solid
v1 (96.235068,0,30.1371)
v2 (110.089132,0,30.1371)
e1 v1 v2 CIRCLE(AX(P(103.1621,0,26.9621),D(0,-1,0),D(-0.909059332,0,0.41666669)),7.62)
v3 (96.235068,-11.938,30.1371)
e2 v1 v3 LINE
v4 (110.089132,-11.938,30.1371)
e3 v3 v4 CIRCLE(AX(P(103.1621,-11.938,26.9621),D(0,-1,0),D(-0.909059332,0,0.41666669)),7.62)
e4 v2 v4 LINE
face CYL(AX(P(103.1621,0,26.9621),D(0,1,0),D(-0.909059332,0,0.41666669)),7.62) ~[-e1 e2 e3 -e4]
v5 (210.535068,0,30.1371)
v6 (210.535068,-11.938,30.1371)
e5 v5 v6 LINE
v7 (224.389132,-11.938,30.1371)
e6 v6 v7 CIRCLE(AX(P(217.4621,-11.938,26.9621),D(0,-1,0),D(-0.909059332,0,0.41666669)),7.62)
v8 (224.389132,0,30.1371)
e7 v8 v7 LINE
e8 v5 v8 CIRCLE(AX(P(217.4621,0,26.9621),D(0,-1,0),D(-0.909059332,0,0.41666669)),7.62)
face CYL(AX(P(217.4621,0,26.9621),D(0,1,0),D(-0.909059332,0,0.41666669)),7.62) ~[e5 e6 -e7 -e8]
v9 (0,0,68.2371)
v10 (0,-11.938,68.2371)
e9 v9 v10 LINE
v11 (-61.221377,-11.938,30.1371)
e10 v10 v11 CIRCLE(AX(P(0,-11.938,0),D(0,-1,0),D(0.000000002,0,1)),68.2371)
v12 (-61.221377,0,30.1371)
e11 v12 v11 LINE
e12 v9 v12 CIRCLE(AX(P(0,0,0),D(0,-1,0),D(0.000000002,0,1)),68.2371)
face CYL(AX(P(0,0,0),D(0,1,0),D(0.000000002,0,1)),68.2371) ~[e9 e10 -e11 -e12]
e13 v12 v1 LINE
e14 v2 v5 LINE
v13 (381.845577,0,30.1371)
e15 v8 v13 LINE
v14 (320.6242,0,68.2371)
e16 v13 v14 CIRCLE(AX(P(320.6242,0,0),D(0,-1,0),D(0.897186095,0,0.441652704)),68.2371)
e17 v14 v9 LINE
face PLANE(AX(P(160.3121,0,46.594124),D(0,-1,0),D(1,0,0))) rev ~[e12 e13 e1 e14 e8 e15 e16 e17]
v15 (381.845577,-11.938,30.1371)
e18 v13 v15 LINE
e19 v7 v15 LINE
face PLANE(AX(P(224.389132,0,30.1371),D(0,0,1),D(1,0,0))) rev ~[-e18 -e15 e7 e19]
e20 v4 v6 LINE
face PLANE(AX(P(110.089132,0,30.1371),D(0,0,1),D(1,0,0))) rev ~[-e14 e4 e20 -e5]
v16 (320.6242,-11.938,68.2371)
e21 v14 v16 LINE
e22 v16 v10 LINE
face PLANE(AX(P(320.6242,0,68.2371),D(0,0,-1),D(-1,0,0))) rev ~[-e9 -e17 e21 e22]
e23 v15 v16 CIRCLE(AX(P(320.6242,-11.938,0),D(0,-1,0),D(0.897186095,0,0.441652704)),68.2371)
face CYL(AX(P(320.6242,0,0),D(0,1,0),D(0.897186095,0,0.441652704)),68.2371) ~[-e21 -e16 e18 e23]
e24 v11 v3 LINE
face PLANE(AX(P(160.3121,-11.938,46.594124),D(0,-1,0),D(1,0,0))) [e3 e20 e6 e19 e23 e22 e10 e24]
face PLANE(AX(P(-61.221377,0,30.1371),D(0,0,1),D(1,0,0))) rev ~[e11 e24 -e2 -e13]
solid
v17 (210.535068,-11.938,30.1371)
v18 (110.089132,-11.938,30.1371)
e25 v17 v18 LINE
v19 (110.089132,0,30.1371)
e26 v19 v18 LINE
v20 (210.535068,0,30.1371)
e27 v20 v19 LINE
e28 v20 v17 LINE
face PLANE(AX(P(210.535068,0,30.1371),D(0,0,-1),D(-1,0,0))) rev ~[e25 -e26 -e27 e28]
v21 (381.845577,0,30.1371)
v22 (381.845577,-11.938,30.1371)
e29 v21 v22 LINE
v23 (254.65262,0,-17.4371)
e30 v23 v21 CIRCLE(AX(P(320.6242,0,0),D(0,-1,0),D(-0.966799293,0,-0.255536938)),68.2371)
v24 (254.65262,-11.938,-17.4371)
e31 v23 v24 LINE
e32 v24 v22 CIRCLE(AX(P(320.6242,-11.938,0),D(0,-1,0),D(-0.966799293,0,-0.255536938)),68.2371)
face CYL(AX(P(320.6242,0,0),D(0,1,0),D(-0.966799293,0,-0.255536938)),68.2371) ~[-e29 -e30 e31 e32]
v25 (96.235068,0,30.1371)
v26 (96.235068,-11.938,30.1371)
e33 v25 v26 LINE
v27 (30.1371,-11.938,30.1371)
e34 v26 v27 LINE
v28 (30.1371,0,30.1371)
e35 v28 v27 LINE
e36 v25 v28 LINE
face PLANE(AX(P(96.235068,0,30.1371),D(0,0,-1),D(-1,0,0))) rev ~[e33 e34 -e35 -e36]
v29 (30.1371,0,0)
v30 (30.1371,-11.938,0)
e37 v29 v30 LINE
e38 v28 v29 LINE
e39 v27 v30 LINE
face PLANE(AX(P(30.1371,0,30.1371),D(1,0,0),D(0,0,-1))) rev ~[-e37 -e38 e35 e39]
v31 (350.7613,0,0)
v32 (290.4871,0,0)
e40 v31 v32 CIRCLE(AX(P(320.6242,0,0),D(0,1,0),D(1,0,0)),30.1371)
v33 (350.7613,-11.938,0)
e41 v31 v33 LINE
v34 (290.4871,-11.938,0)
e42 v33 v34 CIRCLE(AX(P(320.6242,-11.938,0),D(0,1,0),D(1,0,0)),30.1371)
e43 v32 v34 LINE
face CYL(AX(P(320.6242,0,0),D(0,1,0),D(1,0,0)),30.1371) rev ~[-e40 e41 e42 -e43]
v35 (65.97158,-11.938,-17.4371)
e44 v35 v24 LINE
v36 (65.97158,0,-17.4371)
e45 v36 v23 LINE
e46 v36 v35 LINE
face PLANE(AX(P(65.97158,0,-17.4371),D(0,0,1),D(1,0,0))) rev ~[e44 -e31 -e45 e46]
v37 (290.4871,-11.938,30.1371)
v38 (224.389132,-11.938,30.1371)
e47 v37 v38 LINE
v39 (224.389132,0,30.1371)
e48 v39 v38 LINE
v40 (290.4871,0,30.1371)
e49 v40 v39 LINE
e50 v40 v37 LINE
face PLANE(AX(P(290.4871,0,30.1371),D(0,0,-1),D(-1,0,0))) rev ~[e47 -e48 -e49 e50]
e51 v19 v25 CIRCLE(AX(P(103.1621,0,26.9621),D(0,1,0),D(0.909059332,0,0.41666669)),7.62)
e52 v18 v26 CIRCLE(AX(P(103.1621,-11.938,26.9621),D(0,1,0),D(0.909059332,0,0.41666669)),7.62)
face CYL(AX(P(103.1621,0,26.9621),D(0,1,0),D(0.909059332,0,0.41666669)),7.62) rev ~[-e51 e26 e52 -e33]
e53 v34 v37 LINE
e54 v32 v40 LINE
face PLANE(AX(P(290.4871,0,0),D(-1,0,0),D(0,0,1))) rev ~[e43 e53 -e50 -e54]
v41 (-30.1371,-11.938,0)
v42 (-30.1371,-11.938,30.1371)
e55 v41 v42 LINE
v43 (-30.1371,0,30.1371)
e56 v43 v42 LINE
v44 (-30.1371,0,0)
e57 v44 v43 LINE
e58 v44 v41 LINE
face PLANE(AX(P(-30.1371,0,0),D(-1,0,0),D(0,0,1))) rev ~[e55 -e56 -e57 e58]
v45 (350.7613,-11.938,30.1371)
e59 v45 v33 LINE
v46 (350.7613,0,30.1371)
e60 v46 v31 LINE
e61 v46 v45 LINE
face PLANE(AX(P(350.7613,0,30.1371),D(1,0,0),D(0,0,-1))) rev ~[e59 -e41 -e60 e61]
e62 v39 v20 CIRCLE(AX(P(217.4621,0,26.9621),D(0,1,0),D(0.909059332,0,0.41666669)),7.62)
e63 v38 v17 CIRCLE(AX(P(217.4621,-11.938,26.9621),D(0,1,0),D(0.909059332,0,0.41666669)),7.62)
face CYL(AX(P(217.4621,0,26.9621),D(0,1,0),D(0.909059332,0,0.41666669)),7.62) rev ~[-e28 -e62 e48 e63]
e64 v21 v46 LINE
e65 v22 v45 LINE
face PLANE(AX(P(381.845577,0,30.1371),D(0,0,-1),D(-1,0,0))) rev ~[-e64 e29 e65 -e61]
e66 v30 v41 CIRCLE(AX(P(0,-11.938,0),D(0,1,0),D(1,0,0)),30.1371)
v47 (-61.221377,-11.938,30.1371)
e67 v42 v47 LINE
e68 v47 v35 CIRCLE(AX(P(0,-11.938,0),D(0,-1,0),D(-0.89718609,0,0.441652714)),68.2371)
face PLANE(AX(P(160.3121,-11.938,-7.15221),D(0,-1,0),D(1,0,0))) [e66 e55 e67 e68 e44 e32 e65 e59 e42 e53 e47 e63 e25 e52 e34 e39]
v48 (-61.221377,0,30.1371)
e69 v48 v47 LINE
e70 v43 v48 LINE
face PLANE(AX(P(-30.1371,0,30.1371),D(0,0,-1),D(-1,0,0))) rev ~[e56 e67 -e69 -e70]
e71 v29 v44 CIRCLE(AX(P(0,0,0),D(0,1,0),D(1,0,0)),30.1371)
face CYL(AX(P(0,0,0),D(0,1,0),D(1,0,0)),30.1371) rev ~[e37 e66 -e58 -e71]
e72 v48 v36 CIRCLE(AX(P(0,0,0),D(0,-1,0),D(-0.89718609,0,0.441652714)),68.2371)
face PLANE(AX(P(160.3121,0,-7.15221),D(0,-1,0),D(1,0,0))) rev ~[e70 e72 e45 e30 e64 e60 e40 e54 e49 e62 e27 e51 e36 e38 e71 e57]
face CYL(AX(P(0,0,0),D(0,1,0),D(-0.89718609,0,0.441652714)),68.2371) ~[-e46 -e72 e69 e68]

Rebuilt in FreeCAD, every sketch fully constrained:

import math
import FreeCAD as App
import Part
import Sketcher
from FreeCAD import Vector
Q = App.Units.Quantity

doc = App.newDocument("Part")
body = doc.addObject("PartDesign::Body", "Body")

sketch1 = body.newObject("Sketcher::SketchObject", "Sketch")
sketch1.AttachmentSupport = (doc.getObject("XZ_Plane"), [""])
sketch1.MapMode = "FlatFace"
sketch1.addGeometry([
    Part.LineSegment(Vector(-61, 30, 0), Vector(96, 30, 0)),
    Part.ArcOfCircle(Part.Circle(Vector(103, 27, 0), Vector(0, 0, 1), 8), math.radians(155), math.radians(385)),
    Part.LineSegment(Vector(110, 30, 0), Vector(211, 30, 0)),
    Part.ArcOfCircle(Part.Circle(Vector(217, 27, 0), Vector(0, 0, 1), 8), math.radians(155), math.radians(385)),
    Part.LineSegment(Vector(224, 30, 0), Vector(382, 30, 0)),
    Part.ArcOfCircle(Part.Circle(Vector(321, 0, 0), Vector(0, 0, 1), 68), math.radians(26), math.radians(90)),
    Part.LineSegment(Vector(321, 68, 0), Vector(0, 68, 0)),
    Part.ArcOfCircle(Part.Circle(Vector(0, 0, 0), Vector(0, 0, 1), 68), math.radians(90), math.radians(154)),
], False)
sketch1.addConstraint([
    Sketcher.Constraint("Coincident", 0, 2, 1, 1),
    Sketcher.Constraint("Coincident", 1, 2, 2, 1),
    Sketcher.Constraint("Coincident", 2, 2, 3, 1),
    Sketcher.Constraint("Coincident", 3, 2, 4, 1),
    Sketcher.Constraint("Coincident", 4, 2, 5, 1),
    Sketcher.Constraint("Tangent", 5, 2, 6, 1),
    Sketcher.Constraint("Tangent", 6, 2, 7, 1),
    Sketcher.Constraint("Coincident", 7, 2, 0, 1),
    Sketcher.Constraint("Horizontal", 0),
    Sketcher.Constraint("Horizontal", 2),
    Sketcher.Constraint("Horizontal", 4),
    Sketcher.Constraint("Horizontal", 6),
    Sketcher.Constraint("Coincident", 7, 3, -1, 1),
    Sketcher.Constraint("Equal", 1, 3),
    Sketcher.Constraint("Equal", 5, 7),
    Sketcher.Constraint("Horizontal", 1, 3, 3, 3),
    Sketcher.Constraint("Horizontal", 0, 2, 1, 2),
    Sketcher.Constraint("Horizontal", 2, 2, 3, 2),
    Sketcher.Constraint("Equal", 0, 4),
    Sketcher.Constraint("Radius", 1, Q("0.3 in")),
    Sketcher.Constraint("Radius", 5, Q("2.6865 in")),
    Sketcher.Constraint("DistanceX", 1, 3, 3, 3, Q("4.5 in")),
    Sketcher.Constraint("DistanceY", 4, 2, 5, 2, Q("1.5 in")),
    Sketcher.Constraint("DistanceX", 6, 2, 6, 1, Q("12.623 in")),
    Sketcher.Constraint("DistanceY", 1, 3, 0, 2, Q("0.125 in")),
])
pad1 = body.newObject("PartDesign::Pad", "Pad")
pad1.Profile = sketch1
pad1.Length = Q("0.47 in")
body2 = doc.addObject("PartDesign::Body", "Body001")

sketch2 = body2.newObject("Sketcher::SketchObject", "Sketch001")
sketch2.AttachmentSupport = (doc.getObject("XZ_Plane001"), [""])
sketch2.MapMode = "FlatFace"
sketch2.addGeometry([
    Part.ArcOfCircle(Part.Circle(Vector(0, 0, 0), Vector(0, 0, 1), 30), math.radians(180), math.radians(360)),
    Part.LineSegment(Vector(-30, 0, 0), Vector(-30, 30, 0)),
    Part.LineSegment(Vector(-30, 30, 0), Vector(-61, 30, 0)),
    Part.ArcOfCircle(Part.Circle(Vector(0, 0, 0), Vector(0, 0, 1), 68), math.radians(154), math.radians(345)),
    Part.LineSegment(Vector(66, -17, 0), Vector(255, -17, 0)),
    Part.ArcOfCircle(Part.Circle(Vector(321, 0, 0), Vector(0, 0, 1), 68), math.radians(-165), math.radians(26)),
    Part.LineSegment(Vector(382, 30, 0), Vector(351, 30, 0)),
    Part.LineSegment(Vector(351, 30, 0), Vector(351, 0, 0)),
    Part.ArcOfCircle(Part.Circle(Vector(321, 0, 0), Vector(0, 0, 1), 30), math.radians(180), math.radians(360)),
    Part.LineSegment(Vector(290, 0, 0), Vector(290, 30, 0)),
    Part.LineSegment(Vector(290, 30, 0), Vector(224, 30, 0)),
    Part.ArcOfCircle(Part.Circle(Vector(217, 27, 0), Vector(0, 0, 1), 8), math.radians(155), math.radians(385)),
    Part.LineSegment(Vector(211, 30, 0), Vector(110, 30, 0)),
    Part.ArcOfCircle(Part.Circle(Vector(103, 27, 0), Vector(0, 0, 1), 8), math.radians(155), math.radians(385)),
    Part.LineSegment(Vector(96, 30, 0), Vector(30, 30, 0)),
    Part.LineSegment(Vector(30, 30, 0), Vector(30, 0, 0)),
], False)
sketch2.addConstraint([
    Sketcher.Constraint("Tangent", 0, 1, 1, 1),
    Sketcher.Constraint("Coincident", 1, 2, 2, 1),
    Sketcher.Constraint("Coincident", 2, 2, 3, 1),
    Sketcher.Constraint("Coincident", 3, 2, 4, 1),
    Sketcher.Constraint("Coincident", 4, 2, 5, 1),
    Sketcher.Constraint("Coincident", 5, 2, 6, 1),
    Sketcher.Constraint("Coincident", 6, 2, 7, 1),
    Sketcher.Constraint("Tangent", 7, 2, 8, 2),
    Sketcher.Constraint("Tangent", 8, 1, 9, 1),
    Sketcher.Constraint("Coincident", 9, 2, 10, 1),
    Sketcher.Constraint("Coincident", 10, 2, 11, 2),
    Sketcher.Constraint("Coincident", 11, 1, 12, 1),
    Sketcher.Constraint("Coincident", 12, 2, 13, 2),
    Sketcher.Constraint("Coincident", 13, 1, 14, 1),
    Sketcher.Constraint("Coincident", 14, 2, 15, 1),
    Sketcher.Constraint("Tangent", 15, 2, 0, 2),
    Sketcher.Constraint("Vertical", 1),
    Sketcher.Constraint("Horizontal", 2),
    Sketcher.Constraint("Horizontal", 4),
    Sketcher.Constraint("Horizontal", 6),
    Sketcher.Constraint("Vertical", 7),
    Sketcher.Constraint("Vertical", 9),
    Sketcher.Constraint("Horizontal", 10),
    Sketcher.Constraint("Horizontal", 12),
    Sketcher.Constraint("Horizontal", 14),
    Sketcher.Constraint("Vertical", 15),
    Sketcher.Constraint("Coincident", 0, 3, -1, 1),
    Sketcher.Constraint("Coincident", 3, 3, -1, 1),
    Sketcher.Constraint("Coincident", 8, 3, 5, 3),
    Sketcher.Constraint("Equal", 3, 5),
    Sketcher.Constraint("Equal", 0, 8),
    Sketcher.Constraint("Equal", 11, 13),
    Sketcher.Constraint("PointOnObject", 5, 3, -1),
    Sketcher.Constraint("Horizontal", 11, 3, 13, 3),
    Sketcher.Constraint("Horizontal", 2, 2, 5, 2),
    Sketcher.Constraint("Horizontal", 6, 2, 9, 2),
    Sketcher.Constraint("Horizontal", 10, 2, 11, 1),
    Sketcher.Constraint("Horizontal", 12, 2, 13, 1),
    Sketcher.Constraint("Equal", 10, 14),
    Sketcher.Constraint("Radius", 11, Q("0.3 in")),
    Sketcher.Constraint("Radius", 0, Q("1.1865 in")),
    Sketcher.Constraint("Radius", 3, Q("2.6865 in")),
    Sketcher.Constraint("DistanceX", 13, 3, 11, 3, Q("4.5 in")),
    Sketcher.Constraint("DistanceY", 1, 1, 1, 2, Q("1.1865 in")),
    Sketcher.Constraint("DistanceX", -1, 1, 5, 3, Q("12.623 in")),
    Sketcher.Constraint("DistanceY", 13, 3, 1, 2, Q("0.125 in")),
    Sketcher.Constraint("DistanceY", 3, 2, 13, 3, Q("1.748 in")),
])
pad2 = body2.newObject("PartDesign::Pad", "Pad001")
pad2.Profile = sketch2
pad2.Length = Q("0.47 in")

doc.recompute()
